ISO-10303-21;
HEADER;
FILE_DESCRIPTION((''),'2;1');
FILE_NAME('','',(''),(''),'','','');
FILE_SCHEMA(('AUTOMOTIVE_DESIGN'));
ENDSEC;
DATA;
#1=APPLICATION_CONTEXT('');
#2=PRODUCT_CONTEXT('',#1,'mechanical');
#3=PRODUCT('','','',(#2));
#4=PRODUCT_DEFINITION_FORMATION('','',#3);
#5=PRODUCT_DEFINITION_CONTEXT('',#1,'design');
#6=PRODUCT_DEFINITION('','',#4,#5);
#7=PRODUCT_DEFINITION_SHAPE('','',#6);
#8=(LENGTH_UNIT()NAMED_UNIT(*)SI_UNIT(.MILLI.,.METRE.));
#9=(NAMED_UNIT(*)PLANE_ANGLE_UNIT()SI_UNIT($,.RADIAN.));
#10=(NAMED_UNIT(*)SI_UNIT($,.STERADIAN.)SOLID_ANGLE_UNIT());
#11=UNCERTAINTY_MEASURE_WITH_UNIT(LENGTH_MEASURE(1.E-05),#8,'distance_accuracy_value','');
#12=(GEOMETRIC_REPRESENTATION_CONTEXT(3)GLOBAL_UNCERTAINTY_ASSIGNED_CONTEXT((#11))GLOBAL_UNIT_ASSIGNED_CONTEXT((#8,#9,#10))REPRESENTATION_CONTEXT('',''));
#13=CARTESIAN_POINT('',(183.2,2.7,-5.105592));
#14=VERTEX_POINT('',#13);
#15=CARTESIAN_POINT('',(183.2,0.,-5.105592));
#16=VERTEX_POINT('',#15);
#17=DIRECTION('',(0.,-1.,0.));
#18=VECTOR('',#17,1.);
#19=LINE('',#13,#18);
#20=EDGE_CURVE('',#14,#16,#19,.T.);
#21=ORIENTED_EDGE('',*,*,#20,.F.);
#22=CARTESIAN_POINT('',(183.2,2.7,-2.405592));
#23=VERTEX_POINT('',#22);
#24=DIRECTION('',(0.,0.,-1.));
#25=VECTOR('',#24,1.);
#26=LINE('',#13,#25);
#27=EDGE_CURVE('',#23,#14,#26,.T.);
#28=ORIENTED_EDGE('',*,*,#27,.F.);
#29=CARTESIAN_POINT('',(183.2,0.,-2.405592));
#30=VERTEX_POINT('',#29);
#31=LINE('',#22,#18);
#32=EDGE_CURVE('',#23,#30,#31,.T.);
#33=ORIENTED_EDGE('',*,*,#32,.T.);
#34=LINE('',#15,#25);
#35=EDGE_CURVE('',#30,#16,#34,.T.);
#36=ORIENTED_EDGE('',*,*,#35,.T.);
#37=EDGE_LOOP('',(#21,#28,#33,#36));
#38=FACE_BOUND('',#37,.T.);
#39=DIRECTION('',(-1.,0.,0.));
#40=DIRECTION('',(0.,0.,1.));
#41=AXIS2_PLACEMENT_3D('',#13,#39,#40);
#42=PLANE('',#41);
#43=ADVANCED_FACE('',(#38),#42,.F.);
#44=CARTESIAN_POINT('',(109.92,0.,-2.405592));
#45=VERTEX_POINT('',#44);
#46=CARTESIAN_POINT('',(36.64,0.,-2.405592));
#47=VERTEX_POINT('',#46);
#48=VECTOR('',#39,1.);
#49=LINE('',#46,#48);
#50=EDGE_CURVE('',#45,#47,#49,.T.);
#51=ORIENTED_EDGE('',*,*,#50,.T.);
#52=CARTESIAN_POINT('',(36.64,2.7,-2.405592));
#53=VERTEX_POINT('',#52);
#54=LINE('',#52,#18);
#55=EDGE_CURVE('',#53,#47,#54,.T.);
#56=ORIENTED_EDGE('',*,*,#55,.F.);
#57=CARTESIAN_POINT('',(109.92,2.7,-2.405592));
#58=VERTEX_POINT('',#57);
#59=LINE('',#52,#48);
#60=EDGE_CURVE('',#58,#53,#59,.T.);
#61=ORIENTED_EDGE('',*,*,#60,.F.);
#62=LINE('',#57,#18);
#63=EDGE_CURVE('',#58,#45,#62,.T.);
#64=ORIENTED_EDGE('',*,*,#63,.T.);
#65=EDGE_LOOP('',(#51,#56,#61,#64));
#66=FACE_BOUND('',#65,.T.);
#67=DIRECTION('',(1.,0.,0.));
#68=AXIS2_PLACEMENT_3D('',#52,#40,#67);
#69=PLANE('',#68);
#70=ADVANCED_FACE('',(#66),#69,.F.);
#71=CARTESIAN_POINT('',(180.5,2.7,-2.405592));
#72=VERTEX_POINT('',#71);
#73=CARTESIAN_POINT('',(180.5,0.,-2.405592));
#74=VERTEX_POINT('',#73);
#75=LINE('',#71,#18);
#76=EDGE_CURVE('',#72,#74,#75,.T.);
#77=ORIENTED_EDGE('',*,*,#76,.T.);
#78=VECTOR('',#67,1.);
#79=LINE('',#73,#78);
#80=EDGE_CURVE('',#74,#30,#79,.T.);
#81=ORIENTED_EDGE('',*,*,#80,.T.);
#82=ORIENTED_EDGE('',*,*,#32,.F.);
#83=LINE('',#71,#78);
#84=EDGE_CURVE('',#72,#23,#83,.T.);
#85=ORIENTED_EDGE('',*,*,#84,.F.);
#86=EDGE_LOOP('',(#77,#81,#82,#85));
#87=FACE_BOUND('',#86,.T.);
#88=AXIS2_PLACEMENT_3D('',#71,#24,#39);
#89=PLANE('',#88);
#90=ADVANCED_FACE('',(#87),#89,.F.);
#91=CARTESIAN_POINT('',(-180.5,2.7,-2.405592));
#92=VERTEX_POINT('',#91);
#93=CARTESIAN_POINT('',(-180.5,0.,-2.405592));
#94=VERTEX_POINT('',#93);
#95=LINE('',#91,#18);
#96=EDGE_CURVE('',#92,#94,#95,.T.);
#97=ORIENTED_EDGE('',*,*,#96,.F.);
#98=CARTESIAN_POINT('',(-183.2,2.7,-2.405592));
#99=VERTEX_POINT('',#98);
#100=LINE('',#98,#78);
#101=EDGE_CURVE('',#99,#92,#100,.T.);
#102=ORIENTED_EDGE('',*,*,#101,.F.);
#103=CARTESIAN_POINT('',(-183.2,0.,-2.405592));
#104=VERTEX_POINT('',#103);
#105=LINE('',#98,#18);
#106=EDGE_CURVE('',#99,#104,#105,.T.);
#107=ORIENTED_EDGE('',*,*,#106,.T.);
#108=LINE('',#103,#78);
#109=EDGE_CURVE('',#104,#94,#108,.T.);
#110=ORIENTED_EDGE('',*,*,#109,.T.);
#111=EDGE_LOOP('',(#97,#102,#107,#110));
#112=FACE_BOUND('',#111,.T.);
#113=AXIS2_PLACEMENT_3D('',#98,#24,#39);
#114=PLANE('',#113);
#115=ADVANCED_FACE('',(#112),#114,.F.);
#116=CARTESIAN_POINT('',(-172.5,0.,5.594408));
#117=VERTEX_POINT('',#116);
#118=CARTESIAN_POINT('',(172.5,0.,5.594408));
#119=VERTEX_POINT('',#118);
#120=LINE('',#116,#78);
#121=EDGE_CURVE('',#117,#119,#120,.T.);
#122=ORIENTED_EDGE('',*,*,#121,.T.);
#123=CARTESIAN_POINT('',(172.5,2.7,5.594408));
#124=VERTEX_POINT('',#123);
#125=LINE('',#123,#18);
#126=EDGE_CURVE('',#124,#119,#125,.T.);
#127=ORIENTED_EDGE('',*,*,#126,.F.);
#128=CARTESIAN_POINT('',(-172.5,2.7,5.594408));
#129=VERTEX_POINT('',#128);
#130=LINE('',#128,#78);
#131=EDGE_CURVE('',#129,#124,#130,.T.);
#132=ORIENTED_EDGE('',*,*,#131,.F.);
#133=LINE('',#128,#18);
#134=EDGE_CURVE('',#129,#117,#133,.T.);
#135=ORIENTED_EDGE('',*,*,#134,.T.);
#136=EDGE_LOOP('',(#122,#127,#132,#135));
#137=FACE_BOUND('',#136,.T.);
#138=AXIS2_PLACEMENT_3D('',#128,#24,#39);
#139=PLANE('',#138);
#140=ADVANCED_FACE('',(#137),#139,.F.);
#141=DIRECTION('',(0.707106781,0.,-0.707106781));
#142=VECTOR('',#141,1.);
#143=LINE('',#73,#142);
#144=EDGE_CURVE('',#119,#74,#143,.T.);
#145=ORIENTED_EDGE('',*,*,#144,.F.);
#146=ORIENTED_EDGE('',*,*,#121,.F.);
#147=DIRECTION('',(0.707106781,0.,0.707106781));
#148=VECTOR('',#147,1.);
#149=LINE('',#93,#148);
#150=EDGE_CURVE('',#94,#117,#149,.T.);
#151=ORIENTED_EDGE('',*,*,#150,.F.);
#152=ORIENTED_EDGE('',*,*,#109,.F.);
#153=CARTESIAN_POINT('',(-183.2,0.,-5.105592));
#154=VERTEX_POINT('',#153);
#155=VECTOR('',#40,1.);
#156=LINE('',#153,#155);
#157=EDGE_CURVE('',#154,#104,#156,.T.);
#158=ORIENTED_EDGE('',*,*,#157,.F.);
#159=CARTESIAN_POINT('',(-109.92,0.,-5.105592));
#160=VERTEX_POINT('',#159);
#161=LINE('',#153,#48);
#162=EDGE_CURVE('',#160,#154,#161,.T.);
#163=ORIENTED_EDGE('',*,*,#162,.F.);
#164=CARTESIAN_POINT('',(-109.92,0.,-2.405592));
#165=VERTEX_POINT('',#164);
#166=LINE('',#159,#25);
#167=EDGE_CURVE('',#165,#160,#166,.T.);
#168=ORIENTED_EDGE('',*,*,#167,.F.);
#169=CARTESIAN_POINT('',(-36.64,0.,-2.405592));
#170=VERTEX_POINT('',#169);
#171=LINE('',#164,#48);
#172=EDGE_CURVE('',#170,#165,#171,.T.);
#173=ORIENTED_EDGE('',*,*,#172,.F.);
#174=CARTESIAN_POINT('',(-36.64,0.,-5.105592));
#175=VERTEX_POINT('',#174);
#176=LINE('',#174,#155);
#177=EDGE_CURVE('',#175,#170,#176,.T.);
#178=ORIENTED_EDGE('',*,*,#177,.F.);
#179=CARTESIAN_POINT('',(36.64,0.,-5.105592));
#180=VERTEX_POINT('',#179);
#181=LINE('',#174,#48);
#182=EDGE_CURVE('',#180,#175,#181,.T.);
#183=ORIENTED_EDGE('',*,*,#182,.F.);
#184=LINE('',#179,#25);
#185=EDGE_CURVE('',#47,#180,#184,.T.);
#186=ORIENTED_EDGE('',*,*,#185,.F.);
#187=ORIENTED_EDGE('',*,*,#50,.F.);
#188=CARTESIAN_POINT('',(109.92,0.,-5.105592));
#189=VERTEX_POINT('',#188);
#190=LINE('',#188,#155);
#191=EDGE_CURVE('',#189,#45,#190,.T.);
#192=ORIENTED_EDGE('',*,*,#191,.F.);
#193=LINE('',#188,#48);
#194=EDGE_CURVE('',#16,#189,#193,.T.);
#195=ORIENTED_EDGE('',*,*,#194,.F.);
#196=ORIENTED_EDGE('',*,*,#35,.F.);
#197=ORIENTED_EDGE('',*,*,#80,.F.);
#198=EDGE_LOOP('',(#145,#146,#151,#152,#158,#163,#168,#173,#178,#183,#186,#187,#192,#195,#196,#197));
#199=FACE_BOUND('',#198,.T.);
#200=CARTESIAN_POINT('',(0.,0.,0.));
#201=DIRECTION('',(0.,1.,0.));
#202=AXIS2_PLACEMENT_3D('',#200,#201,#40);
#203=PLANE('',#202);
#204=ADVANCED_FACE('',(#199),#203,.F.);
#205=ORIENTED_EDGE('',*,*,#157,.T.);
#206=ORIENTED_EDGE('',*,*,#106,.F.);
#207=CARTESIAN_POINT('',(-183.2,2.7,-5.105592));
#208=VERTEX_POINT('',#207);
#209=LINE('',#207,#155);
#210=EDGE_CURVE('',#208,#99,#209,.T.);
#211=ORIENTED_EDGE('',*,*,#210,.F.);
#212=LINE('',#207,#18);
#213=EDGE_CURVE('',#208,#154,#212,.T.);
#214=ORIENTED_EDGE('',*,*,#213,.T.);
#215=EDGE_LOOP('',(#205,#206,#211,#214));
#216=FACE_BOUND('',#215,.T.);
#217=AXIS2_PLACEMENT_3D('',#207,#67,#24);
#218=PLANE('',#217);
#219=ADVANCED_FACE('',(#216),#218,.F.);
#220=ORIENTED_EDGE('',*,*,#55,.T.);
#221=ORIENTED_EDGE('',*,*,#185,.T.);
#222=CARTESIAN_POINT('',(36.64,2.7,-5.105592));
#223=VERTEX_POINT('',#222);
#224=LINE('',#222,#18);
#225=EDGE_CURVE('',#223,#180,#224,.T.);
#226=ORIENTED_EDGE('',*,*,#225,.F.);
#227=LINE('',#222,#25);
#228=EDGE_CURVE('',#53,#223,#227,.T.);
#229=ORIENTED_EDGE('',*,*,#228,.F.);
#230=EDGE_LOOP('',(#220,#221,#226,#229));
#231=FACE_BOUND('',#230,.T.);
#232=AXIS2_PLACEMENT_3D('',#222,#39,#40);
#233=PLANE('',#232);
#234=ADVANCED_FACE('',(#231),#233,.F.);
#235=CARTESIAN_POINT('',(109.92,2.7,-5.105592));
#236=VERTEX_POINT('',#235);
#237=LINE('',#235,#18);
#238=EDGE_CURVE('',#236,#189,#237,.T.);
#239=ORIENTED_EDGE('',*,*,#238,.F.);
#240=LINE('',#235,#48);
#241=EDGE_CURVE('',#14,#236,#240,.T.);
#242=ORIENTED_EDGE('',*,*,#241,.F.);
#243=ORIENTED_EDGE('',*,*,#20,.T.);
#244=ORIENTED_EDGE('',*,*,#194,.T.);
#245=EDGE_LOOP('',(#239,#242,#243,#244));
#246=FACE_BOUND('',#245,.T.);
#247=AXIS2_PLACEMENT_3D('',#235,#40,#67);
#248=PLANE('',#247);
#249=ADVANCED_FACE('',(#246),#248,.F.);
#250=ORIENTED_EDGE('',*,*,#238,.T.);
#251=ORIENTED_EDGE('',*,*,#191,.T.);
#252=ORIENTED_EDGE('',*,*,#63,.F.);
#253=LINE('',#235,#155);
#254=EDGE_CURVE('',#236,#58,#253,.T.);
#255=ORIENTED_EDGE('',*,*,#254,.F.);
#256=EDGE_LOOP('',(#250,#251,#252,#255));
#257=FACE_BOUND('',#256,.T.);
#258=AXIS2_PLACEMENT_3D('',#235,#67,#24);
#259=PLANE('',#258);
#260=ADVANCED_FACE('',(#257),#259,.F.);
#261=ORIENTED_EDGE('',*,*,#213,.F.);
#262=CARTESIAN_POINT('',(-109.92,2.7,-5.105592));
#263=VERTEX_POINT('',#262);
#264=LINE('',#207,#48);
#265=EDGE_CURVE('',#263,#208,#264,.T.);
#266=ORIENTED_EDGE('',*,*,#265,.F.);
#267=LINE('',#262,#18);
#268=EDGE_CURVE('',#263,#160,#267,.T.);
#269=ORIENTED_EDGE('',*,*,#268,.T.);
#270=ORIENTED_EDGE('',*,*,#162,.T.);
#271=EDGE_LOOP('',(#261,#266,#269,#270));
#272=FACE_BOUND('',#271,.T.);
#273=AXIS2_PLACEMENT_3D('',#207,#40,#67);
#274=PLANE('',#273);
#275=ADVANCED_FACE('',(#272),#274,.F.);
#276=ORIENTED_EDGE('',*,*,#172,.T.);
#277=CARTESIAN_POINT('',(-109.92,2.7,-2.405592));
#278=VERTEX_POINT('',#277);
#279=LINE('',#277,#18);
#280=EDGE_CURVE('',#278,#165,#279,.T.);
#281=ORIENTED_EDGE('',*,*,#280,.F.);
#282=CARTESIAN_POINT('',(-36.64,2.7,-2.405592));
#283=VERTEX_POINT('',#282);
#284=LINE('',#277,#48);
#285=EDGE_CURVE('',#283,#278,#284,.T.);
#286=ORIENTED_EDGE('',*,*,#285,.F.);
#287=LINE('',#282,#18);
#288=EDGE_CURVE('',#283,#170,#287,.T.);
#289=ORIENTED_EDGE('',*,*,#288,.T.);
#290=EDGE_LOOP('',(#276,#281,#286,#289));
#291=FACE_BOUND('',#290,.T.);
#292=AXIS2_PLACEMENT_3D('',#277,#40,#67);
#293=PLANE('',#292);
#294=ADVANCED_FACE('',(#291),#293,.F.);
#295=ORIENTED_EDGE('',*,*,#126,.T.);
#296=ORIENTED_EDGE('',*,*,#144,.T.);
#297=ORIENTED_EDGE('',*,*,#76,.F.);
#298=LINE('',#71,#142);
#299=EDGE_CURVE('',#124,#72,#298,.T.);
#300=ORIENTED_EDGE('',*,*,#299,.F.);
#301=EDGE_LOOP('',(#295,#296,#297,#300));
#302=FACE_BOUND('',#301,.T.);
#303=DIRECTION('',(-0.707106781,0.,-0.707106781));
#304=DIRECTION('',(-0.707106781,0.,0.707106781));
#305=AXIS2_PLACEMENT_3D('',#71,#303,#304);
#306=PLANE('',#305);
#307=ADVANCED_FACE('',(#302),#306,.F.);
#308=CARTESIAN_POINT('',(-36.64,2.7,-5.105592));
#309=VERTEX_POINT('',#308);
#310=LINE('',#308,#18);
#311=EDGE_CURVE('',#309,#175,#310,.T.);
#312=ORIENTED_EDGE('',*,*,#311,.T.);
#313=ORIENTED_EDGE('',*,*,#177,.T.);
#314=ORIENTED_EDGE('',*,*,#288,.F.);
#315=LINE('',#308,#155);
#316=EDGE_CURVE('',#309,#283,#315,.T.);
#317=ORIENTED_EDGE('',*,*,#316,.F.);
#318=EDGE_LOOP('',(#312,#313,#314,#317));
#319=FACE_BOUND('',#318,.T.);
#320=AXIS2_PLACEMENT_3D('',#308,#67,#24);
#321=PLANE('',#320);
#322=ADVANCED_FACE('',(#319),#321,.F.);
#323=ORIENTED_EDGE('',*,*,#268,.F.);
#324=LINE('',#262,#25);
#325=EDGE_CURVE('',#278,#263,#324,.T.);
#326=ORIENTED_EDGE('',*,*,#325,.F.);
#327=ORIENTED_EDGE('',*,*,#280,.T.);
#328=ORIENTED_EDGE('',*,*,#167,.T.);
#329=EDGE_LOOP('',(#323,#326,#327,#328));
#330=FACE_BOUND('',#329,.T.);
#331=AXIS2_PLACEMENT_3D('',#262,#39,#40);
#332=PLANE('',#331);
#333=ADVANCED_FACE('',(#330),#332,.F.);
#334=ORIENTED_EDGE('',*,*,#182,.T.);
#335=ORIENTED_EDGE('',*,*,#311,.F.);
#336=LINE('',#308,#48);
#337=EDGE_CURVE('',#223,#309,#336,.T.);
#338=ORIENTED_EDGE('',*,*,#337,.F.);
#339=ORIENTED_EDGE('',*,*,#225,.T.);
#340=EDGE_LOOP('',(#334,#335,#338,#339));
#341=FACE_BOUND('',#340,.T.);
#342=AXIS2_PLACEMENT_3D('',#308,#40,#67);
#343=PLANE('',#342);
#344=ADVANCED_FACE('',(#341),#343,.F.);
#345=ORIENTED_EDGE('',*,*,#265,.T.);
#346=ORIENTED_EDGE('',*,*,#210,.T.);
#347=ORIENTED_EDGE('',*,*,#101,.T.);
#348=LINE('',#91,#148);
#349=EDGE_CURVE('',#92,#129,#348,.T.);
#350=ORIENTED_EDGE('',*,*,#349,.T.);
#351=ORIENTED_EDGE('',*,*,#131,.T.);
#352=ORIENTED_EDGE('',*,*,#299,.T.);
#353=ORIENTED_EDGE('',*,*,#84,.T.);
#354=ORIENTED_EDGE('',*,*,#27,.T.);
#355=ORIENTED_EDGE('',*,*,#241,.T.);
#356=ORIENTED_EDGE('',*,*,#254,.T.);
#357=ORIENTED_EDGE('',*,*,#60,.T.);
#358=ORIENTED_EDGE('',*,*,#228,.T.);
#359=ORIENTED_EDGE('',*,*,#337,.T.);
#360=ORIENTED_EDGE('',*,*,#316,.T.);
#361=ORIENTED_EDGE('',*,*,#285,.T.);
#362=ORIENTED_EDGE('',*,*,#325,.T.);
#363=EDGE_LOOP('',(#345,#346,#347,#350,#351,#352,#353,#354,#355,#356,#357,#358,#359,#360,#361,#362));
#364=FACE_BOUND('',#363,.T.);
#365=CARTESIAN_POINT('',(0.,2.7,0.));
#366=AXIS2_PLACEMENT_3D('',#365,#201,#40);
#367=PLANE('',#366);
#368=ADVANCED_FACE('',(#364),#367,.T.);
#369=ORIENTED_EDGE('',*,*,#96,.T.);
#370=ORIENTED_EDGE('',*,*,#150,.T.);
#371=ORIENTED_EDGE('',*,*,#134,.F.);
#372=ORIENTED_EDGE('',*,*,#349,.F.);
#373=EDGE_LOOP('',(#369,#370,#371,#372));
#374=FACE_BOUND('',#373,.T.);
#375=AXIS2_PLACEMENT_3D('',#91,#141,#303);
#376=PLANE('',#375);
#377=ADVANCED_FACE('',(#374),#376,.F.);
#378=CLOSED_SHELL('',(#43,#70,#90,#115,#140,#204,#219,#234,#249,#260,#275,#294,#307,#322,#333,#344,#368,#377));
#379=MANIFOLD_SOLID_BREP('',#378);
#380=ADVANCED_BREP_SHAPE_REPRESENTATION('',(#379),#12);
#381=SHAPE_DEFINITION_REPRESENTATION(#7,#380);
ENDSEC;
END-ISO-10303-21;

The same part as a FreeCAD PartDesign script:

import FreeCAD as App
import Part
import Sketcher

V = App.Vector


def add_polygon(sketch, points):
    """Adds a closed chain of lines whose ends are joined by coincident constraints."""
    first, n = sketch.GeometryCount, len(points)
    for a, b in zip(points, points[1:] + points[:1]):
        sketch.addGeometry(Part.LineSegment(App.Vector(*a, 0), App.Vector(*b, 0)), False)
    for i in range(n):
        sketch.addConstraint(Sketcher.Constraint("Coincident", first + i, 2, first + (i + 1) % n, 1))

doc = App.newDocument("Part")
params = doc.addObject("Spreadsheet::Sheet", "Params")
for row, (alias, value) in enumerate([
    ("sketch1_width", "345 mm"),
    ("sketch1_width2", "2.7 mm"),
    ("pad1_length", "2.7 mm"),
], start=1):
    params.set(f"A{row}", alias)
    params.set(f"B{row}", "=" + value)
    params.setAlias(f"B{row}", alias)

body = doc.addObject("PartDesign::Body", "Body")

sketch1 = body.newObject("Sketcher::SketchObject", "Sketch")
sketch1.AttachmentSupport = (doc.getObject("XZ_Plane"), [""])
sketch1.MapMode = "FlatFace"
add_polygon(sketch1, [(-183.2, -2.405592), (-180.5, -2.405592), (-172.5, 5.594408), (172.5, 5.594408), (180.5, -2.405592), (183.2, -2.405592), (183.2, -5.105592), (109.92, -5.105592), (109.92, -2.405592), (36.64, -2.405592), (36.64, -5.105592), (-36.64, -5.105592), (-36.64, -2.405592), (-109.92, -2.405592), (-109.92, -5.105592), (-183.2, -5.105592)])
sketch1.addConstraint([
    Sketcher.Constraint("Horizontal", 0),
    Sketcher.Constraint("Horizontal", 2),
    Sketcher.Constraint("Horizontal", 4),
    Sketcher.Constraint("Vertical", 5),
    Sketcher.Constraint("Horizontal", 6),
    Sketcher.Constraint("Vertical", 7),
    Sketcher.Constraint("Horizontal", 8),
    Sketcher.Constraint("Vertical", 9),
    Sketcher.Constraint("Horizontal", 10),
    Sketcher.Constraint("Vertical", 11),
    Sketcher.Constraint("Horizontal", 12),
    Sketcher.Constraint("Vertical", 13),
    Sketcher.Constraint("Horizontal", 14),
    Sketcher.Constraint("Vertical", 15),
    Sketcher.Constraint("Symmetric", 0, 2, 3, 2, -2),
    Sketcher.Constraint("Symmetric", 8, 2, 11, 2, -2),
    Sketcher.Constraint("Symmetric", 6, 2, 13, 2, -2),
    Sketcher.Constraint("Perpendicular", 1, 3),
    Sketcher.Constraint("Horizontal", 4, 2, 7, 2),
    Sketcher.Constraint("Horizontal", 6, 2, 9, 2),
    Sketcher.Constraint("Equal", 0, 4),
    Sketcher.Constraint("Equal", 6, 8),
    Sketcher.Constraint("Equal", 8, 10),
    Sketcher.Constraint("Equal", 4, 5),
    Sketcher.Constraint("Equal", 1, 3),
    Sketcher.Constraint("DistanceX", 2, 1, 2, 2, 345.0),
    Sketcher.Constraint("DistanceX", 0, 1, 0, 2, 2.7),
    Sketcher.Constraint("DistanceX", 0, 2, 1, 2, 8.0),
    Sketcher.Constraint("DistanceY", 0, 2, -1, 1, 2.405592),
])
sketch1.setExpression("Constraints[41]", "Params.sketch1_width")
sketch1.setExpression("Constraints[42]", "Params.sketch1_width2")
pad1 = body.newObject("PartDesign::Pad", "Pad")
pad1.Profile = sketch1
pad1.setExpression("Length", "Params.pad1_length")
pad1.Reversed = True

doc.recompute()
